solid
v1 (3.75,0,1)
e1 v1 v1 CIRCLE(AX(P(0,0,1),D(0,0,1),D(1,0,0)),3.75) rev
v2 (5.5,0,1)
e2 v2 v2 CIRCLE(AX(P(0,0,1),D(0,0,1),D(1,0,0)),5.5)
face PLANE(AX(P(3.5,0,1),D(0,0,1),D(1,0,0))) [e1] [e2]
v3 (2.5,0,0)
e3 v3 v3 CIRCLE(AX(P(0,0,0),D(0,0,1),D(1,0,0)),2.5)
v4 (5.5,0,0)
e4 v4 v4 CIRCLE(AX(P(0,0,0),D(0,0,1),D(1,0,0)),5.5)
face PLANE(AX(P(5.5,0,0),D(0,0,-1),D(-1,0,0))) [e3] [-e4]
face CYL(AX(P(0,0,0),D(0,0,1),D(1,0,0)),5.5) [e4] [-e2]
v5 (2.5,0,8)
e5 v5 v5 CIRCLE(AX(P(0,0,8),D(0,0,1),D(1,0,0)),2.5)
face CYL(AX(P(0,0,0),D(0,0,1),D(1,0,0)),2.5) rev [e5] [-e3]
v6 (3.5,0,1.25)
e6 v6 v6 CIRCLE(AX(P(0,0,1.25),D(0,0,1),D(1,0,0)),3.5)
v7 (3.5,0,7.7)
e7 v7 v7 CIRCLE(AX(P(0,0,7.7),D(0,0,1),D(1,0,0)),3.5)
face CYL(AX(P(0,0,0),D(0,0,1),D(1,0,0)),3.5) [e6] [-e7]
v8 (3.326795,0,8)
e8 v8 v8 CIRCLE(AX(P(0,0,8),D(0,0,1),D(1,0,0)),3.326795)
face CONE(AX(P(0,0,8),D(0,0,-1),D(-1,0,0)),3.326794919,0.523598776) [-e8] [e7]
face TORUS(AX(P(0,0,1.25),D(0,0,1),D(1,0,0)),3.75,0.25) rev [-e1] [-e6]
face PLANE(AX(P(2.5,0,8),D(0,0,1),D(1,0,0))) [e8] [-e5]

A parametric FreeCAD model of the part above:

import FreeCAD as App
import Part
import Sketcher
Q = App.Units.Quantity


def edges_at(feature, points):
    """Names of the edges that pass closest to the given points."""
    edges = feature.Shape.Edges
    near = lambda p: min(range(len(edges)), key=lambda i: edges[i].distToShape(Part.Vertex(*p))[0])
    return sorted({f"Edge{near(p) + 1}" for p in points})

doc = App.newDocument("Part")
body = doc.addObject("PartDesign::Body", "Body")

sketch1 = body.newObject("Sketcher::SketchObject", "Sketch")
sketch1.AttachmentSupport = (doc.getObject("XZ_Plane"), [""])
sketch1.MapMode = "FlatFace"
sketch1.addGeometry(Part.LineSegment(App.Vector(3.5, 1, 0), App.Vector(5.5, 1, 0)), False)
sketch1.addGeometry(Part.LineSegment(App.Vector(5.5, 1, 0), App.Vector(5.5, 0, 0)), False)
sketch1.addGeometry(Part.LineSegment(App.Vector(5.5, 0, 0), App.Vector(2.5, 0, 0)), False)
sketch1.addGeometry(Part.LineSegment(App.Vector(2.5, 0, 0), App.Vector(2.5, 8, 0)), False)
sketch1.addGeometry(Part.LineSegment(App.Vector(2.5, 8, 0), App.Vector(3.33, 8, 0)), False)
sketch1.addGeometry(Part.LineSegment(App.Vector(3.33, 8, 0), App.Vector(3.5, 7.7, 0)), False)
sketch1.addGeometry(Part.LineSegment(App.Vector(3.5, 7.7, 0), App.Vector(3.5, 1, 0)), False)
sketch1.addConstraint(Sketcher.Constraint("Coincident", 0, 2, 1, 1))
sketch1.addConstraint(Sketcher.Constraint("Coincident", 1, 2, 2, 1))
sketch1.addConstraint(Sketcher.Constraint("Coincident", 2, 2, 3, 1))
sketch1.addConstraint(Sketcher.Constraint("Coincident", 3, 2, 4, 1))
sketch1.addConstraint(Sketcher.Constraint("Coincident", 4, 2, 5, 1))
sketch1.addConstraint(Sketcher.Constraint("Coincident", 5, 2, 6, 1))
sketch1.addConstraint(Sketcher.Constraint("Coincident", 6, 2, 0, 1))
sketch1.addConstraint(Sketcher.Constraint("Horizontal", 0))
sketch1.addConstraint(Sketcher.Constraint("Vertical", 1))
sketch1.addConstraint(Sketcher.Constraint("Horizontal", 2))
sketch1.addConstraint(Sketcher.Constraint("Vertical", 3))
sketch1.addConstraint(Sketcher.Constraint("Horizontal", 4))
sketch1.addConstraint(Sketcher.Constraint("Vertical", 6))
sketch1.addConstraint(Sketcher.Constraint("PointOnObject", 1, 2, -1))
sketch1.addConstraint(Sketcher.Constraint("DistanceX", 0, 1, 0, 2, Q("2 mm")))
sketch1.addConstraint(Sketcher.Constraint("DistanceX", 2, 2, 2, 1, Q("3 mm")))
sketch1.addConstraint(Sketcher.Constraint("DistanceY", 1, 2, 1, 1, Q("1 mm")))
sketch1.addConstraint(Sketcher.Constraint("DistanceY", 3, 1, 3, 2, Q("8 mm")))
sketch1.addConstraint(Sketcher.Constraint("Angle", 5, Q("-60 deg")))
sketch1.addConstraint(Sketcher.Constraint("DistanceY", 6, 2, 6, 1, Q("6.7 mm")))
sketch1.addConstraint(Sketcher.Constraint("DistanceX", -1, 1, 0, 2, Q("5.5 mm")))
revolution = body.newObject("PartDesign::Revolution", "Revolution")
revolution.Profile = sketch1
revolution.ReferenceAxis = (sketch1, ["V_Axis"])
revolution.Angle = 360
doc.recompute()

fillet = body.newObject("PartDesign::Fillet", "Fillet")
fillet.Base = (revolution, edges_at(revolution, [(-3.5, 0, 1)]))
fillet.Radius = 0.25

doc.recompute()
